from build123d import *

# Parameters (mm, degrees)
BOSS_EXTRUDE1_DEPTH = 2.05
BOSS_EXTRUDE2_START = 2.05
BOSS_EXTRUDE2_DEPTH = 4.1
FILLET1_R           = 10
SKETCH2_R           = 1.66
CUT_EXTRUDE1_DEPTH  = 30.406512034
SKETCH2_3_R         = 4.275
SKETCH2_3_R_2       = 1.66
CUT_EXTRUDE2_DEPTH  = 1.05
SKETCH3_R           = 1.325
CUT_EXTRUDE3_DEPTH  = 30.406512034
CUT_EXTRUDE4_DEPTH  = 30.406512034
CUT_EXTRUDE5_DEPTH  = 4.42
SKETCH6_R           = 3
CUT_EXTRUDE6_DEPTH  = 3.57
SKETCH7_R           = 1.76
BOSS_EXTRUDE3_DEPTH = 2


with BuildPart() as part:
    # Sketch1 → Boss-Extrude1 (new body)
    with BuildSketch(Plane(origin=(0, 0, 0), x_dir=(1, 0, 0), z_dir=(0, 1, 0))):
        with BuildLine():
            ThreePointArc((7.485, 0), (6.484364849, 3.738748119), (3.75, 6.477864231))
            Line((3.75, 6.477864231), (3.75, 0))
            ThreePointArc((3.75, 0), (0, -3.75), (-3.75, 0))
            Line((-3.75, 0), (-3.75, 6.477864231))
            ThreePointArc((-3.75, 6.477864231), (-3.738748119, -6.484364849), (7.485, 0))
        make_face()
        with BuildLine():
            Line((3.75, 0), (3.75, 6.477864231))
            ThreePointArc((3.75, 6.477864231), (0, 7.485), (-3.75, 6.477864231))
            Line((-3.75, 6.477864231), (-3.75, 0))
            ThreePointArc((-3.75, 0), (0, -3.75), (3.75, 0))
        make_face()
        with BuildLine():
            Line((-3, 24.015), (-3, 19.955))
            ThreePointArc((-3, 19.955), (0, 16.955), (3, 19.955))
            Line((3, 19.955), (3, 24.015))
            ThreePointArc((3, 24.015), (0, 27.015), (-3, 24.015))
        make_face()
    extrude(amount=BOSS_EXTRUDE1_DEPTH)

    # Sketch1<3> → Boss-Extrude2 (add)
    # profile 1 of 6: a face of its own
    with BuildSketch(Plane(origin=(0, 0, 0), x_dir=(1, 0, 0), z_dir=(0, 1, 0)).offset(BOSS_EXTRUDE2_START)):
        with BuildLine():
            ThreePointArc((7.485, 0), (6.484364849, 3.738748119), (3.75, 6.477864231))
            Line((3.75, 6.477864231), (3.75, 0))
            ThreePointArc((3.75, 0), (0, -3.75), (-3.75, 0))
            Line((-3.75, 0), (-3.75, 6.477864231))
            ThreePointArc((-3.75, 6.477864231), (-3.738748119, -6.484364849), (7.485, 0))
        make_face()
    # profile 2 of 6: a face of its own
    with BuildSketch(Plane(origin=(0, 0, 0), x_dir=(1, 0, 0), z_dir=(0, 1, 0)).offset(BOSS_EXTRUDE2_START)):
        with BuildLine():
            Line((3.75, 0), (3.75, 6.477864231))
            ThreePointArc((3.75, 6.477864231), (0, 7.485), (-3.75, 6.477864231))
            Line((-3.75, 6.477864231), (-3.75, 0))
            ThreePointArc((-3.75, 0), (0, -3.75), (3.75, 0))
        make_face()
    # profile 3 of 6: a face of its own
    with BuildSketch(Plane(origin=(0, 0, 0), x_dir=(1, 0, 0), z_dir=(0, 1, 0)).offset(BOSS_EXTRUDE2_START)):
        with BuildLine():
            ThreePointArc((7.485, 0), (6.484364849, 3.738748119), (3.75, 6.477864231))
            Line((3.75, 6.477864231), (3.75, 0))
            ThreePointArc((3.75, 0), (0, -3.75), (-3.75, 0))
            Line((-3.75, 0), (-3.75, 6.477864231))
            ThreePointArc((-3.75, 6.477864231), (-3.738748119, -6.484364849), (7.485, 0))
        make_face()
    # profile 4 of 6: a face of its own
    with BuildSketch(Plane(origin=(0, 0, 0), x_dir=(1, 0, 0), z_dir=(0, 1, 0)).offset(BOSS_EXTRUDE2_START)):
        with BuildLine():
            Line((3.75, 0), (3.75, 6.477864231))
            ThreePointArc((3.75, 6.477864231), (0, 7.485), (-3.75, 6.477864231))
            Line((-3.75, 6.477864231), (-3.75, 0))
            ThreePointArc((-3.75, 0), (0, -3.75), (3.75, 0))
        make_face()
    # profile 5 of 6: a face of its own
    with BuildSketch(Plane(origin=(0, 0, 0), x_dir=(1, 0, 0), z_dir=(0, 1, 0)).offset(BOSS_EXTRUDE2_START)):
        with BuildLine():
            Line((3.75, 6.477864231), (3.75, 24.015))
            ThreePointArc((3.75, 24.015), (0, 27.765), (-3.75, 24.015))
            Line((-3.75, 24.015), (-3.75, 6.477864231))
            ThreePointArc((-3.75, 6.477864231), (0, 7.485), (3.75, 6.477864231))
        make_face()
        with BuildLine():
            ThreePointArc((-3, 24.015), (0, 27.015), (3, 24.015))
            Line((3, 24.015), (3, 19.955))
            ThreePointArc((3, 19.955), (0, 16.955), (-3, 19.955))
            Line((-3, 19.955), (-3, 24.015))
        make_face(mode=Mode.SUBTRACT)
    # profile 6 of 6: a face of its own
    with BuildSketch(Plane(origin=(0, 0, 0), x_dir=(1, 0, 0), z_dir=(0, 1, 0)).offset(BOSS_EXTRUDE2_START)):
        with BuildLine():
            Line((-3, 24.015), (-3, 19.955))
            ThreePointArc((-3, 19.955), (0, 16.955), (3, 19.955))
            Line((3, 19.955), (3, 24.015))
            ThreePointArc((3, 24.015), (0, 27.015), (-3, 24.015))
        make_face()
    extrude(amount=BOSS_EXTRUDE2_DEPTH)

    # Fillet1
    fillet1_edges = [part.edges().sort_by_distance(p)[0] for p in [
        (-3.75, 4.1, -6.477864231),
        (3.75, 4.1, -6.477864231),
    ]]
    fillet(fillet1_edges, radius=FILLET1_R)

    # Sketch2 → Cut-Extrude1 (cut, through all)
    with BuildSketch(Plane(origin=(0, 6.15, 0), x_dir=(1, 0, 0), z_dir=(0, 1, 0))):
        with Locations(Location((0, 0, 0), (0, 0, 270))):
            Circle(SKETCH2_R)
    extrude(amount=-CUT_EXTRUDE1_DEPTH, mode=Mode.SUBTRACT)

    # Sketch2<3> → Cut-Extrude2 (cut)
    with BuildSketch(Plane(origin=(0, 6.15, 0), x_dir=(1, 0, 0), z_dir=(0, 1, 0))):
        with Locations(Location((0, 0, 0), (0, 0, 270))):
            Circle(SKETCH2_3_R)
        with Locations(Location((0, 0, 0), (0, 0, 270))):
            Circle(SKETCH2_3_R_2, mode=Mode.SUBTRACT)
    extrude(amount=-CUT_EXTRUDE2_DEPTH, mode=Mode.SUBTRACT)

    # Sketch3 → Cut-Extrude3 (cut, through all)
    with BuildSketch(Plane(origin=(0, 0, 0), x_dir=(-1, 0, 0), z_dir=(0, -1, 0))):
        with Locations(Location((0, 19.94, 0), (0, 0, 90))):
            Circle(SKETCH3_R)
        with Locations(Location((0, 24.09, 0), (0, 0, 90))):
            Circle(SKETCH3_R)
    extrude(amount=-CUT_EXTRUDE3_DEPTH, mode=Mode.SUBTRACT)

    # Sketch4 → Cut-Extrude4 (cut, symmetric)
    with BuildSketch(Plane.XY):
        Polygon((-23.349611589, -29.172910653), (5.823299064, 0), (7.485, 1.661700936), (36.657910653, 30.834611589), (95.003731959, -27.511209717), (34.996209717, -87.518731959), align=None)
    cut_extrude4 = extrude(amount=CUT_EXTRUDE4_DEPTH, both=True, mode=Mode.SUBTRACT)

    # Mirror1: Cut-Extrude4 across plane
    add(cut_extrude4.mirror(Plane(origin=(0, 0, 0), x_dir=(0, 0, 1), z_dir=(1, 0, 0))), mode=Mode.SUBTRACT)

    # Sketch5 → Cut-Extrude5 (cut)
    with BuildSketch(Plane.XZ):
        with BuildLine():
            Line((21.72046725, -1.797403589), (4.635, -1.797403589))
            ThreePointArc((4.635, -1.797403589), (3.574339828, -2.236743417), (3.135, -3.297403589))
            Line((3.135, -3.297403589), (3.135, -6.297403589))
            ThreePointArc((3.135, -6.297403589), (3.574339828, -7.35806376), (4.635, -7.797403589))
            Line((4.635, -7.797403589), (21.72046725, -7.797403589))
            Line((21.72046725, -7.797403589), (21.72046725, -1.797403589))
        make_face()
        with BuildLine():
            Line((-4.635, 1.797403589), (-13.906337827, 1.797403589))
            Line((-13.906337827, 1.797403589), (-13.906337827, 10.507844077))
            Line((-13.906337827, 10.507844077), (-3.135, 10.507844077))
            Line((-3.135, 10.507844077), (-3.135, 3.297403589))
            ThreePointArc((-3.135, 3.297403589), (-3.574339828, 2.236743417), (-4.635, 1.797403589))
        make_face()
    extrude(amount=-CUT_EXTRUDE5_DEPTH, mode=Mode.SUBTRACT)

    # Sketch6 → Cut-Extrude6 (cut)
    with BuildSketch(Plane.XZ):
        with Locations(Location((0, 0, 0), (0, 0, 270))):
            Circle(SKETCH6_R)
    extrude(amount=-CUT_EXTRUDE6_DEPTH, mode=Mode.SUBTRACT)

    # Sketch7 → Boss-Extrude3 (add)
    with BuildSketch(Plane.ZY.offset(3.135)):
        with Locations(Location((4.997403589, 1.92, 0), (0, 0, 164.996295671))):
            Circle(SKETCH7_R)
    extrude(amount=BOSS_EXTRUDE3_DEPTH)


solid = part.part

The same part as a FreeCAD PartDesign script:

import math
import FreeCAD as App
import Part
import Sketcher
Q = App.Units.Quantity


def edges_at(feature, points):
    """Names of the edges that pass closest to the given points."""
    edges = feature.Shape.Edges
    near = lambda p: min(range(len(edges)), key=lambda i: edges[i].distToShape(Part.Vertex(*p))[0])
    return sorted({f"Edge{near(p) + 1}" for p in points})

doc = App.newDocument("Part")
body = doc.addObject("PartDesign::Body", "Body")
body.AllowCompound = True

# Sketch on XZ plane
sketch1 = body.newObject("Sketcher::SketchObject", "Sketch")
sketch1.AttachmentSupport = (doc.getObject("XZ_Plane"), [""])
sketch1.MapMode = "FlatFace"
sketch1.addGeometry(Part.ArcOfCircle(Part.Circle(App.Vector(0, 0, 0), App.Vector(0, 0, 1), 7.5), math.radians(-60), math.radians(0)), False)
sketch1.addGeometry(Part.ArcOfCircle(Part.Circle(App.Vector(0, 0, 0), App.Vector(0, 0, 1), 7.5), math.radians(-120), math.radians(-60)), False)
sketch1.addGeometry(Part.ArcOfCircle(Part.Circle(App.Vector(0, 0, 0), App.Vector(0, 0, 1), 7.5), math.radians(0), math.radians(240)), False)
sketch1.addGeometry(Part.LineSegment(App.Vector(-3, -24, 0), App.Vector(-3, -20, 0)), False)
sketch1.addGeometry(Part.ArcOfCircle(Part.Circle(App.Vector(0, -20, 0), App.Vector(0, 0, 1), 3), math.radians(0), math.radians(180)), False)
sketch1.addGeometry(Part.LineSegment(App.Vector(3, -20, 0), App.Vector(3, -24, 0)), False)
sketch1.addGeometry(Part.ArcOfCircle(Part.Circle(App.Vector(0, -24, 0), App.Vector(0, 0, 1), 3), math.radians(180), math.radians(360)), False)
sketch1.addConstraint(Sketcher.Constraint("Tangent", 0, 1, 1, 2))
sketch1.addConstraint(Sketcher.Constraint("Tangent", 1, 1, 2, 2))
sketch1.addConstraint(Sketcher.Constraint("Tangent", 2, 1, 0, 2))
sketch1.addConstraint(Sketcher.Constraint("Tangent", 3, 2, 4, 2))
sketch1.addConstraint(Sketcher.Constraint("Tangent", 4, 1, 5, 1))
sketch1.addConstraint(Sketcher.Constraint("Tangent", 5, 2, 6, 2))
sketch1.addConstraint(Sketcher.Constraint("Tangent", 6, 1, 3, 1))
sketch1.addConstraint(Sketcher.Constraint("Vertical", 3))
sketch1.addConstraint(Sketcher.Constraint("Vertical", 5))
sketch1.addConstraint(Sketcher.Constraint("Coincident", 0, 3, -1, 1))
sketch1.addConstraint(Sketcher.Constraint("PointOnObject", 4, 3, -2))
sketch1.addConstraint(Sketcher.Constraint("PointOnObject", 2, 1, -1))
sketch1.addConstraint(Sketcher.Constraint("Horizontal", 0, 1, 1, 1))
sketch1.addConstraint(Sketcher.Constraint("Radius", 4, 3.0))
sketch1.addConstraint(Sketcher.Constraint("Radius", 0, 7.485))
sketch1.addConstraint(Sketcher.Constraint("DistanceY", 3, 1, 3, 2, 4.06))
sketch1.addConstraint(Sketcher.Constraint("DistanceX", 1, 1, 0, 1, 7.5))
sketch1.addConstraint(Sketcher.Constraint("DistanceY", 4, 3, -1, 1, 19.955))
pad1 = body.newObject("PartDesign::Pad", "Pad")
pad1.Profile = sketch1
pad1.Length = 2.05
pad1.Reversed = True

# Sketch on XZ plane
sketch2 = body.newObject("Sketcher::SketchObject", "Sketch001")
sketch2.AttachmentSupport = (doc.getObject("XZ_Plane"), [""])
sketch2.MapMode = "FlatFace"
sketch2.AttachmentOffset = App.Placement(App.Vector(0, 0, -2.05), App.Rotation())
sketch2.addGeometry(Part.ArcOfCircle(Part.Circle(App.Vector(0, 0, 0), App.Vector(0, 0, 1), 7.5), math.radians(-60), math.radians(0)), False)
sketch2.addGeometry(Part.LineSegment(App.Vector(3.8, -6.5, 0), App.Vector(3.8, -24, 0)), False)
sketch2.addGeometry(Part.ArcOfCircle(Part.Circle(App.Vector(0, -24, 0), App.Vector(0, 0, 1), 3.8), math.radians(180), math.radians(360)), False)
sketch2.addGeometry(Part.LineSegment(App.Vector(-3.8, -24, 0), App.Vector(-3.8, -6.5, 0)), False)
sketch2.addGeometry(Part.ArcOfCircle(Part.Circle(App.Vector(0, 0, 0), App.Vector(0, 0, 1), 7.5), math.radians(0), math.radians(240)), False)
sketch2.addConstraint(Sketcher.Constraint("Coincident", 0, 1, 1, 1))
sketch2.addConstraint(Sketcher.Constraint("Tangent", 1, 2, 2, 2))
sketch2.addConstraint(Sketcher.Constraint("Tangent", 2, 1, 3, 1))
sketch2.addConstraint(Sketcher.Constraint("Coincident", 3, 2, 4, 2))
sketch2.addConstraint(Sketcher.Constraint("Tangent", 4, 1, 0, 2))
sketch2.addConstraint(Sketcher.Constraint("Vertical", 1))
sketch2.addConstraint(Sketcher.Constraint("Vertical", 3))
sketch2.addConstraint(Sketcher.Constraint("Coincident", 0, 3, -1, 1))
sketch2.addConstraint(Sketcher.Constraint("Equal", 0, 4))
sketch2.addConstraint(Sketcher.Constraint("PointOnObject", 2, 3, -2))
sketch2.addConstraint(Sketcher.Constraint("PointOnObject", 4, 1, -1))
sketch2.addConstraint(Sketcher.Constraint("Radius", 2, 3.75))
sketch2.addConstraint(Sketcher.Constraint("Radius", 0, 7.485))
sketch2.addConstraint(Sketcher.Constraint("DistanceY", 2, 3, -1, 1, 24.015))
pad2 = body.newObject("PartDesign::Pad", "Pad001")
pad2.Profile = sketch2
pad2.Length = 4.1
pad2.Reversed = True
doc.recompute()

fillet = body.newObject("PartDesign::Fillet", "Fillet")
fillet.Base = (pad2, edges_at(pad2, [(-3.75, 4.1, -6.478), (3.75, 4.1, -6.478)]))
fillet.Radius = 10

# Sketch on XZ plane
sketch3 = body.newObject("Sketcher::SketchObject", "Sketch002")
sketch3.AttachmentSupport = (doc.getObject("XZ_Plane"), [""])
sketch3.MapMode = "FlatFace"
sketch3.AttachmentOffset = App.Placement(App.Vector(0, 0, -6.15), App.Rotation())
sketch3.addGeometry(Part.Circle(App.Vector(0, 0, 0), App.Vector(0, 0, 1), 1.7), False)
sketch3.addConstraint(Sketcher.Constraint("Coincident", 0, 3, -1, 1))
sketch3.addConstraint(Sketcher.Constraint("Diameter", 0, 3.32))
pocket1 = body.newObject("PartDesign::Pocket", "Pocket")
pocket1.Profile = sketch3
pocket1.Type = "ThroughAll"
pocket1.Reversed = True

# Sketch on XZ plane
sketch4 = body.newObject("Sketcher::SketchObject", "Sketch003")
sketch4.AttachmentSupport = (doc.getObject("XZ_Plane"), [""])
sketch4.MapMode = "FlatFace"
sketch4.AttachmentOffset = App.Placement(App.Vector(0, 0, -6.15), App.Rotation())
sketch4.addGeometry(Part.Circle(App.Vector(0, 0, 0), App.Vector(0, 0, 1), 4.3), False)
sketch4.addGeometry(Part.Circle(App.Vector(0, 0, 0), App.Vector(0, 0, 1), 1.7), False)
sketch4.addConstraint(Sketcher.Constraint("Coincident", 0, 3, -1, 1))
sketch4.addConstraint(Sketcher.Constraint("Coincident", 1, 3, -1, 1))
sketch4.addConstraint(Sketcher.Constraint("Diameter", 0, 8.55))
sketch4.addConstraint(Sketcher.Constraint("Diameter", 1, 3.32))
pocket2 = body.newObject("PartDesign::Pocket", "Pocket001")
pocket2.Profile = sketch4
pocket2.Length = 1.05
pocket2.Reversed = True

# Sketch on XZ plane
sketch5 = body.newObject("Sketcher::SketchObject", "Sketch004")
sketch5.AttachmentSupport = (doc.getObject("XZ_Plane"), [""])
sketch5.MapMode = "FlatFace"
sketch5.addGeometry(Part.Circle(App.Vector(0, -19.9, 0), App.Vector(0, 0, 1), 1.3), False)
sketch5.addGeometry(Part.Circle(App.Vector(0, -24.1, 0), App.Vector(0, 0, 1), 1.3), False)
sketch5.addConstraint(Sketcher.Constraint("Equal", 0, 1))
sketch5.addConstraint(Sketcher.Constraint("PointOnObject", 0, 3, -2))
sketch5.addConstraint(Sketcher.Constraint("PointOnObject", 1, 3, -2))
sketch5.addConstraint(Sketcher.Constraint("Diameter", 0, 2.65))
sketch5.addConstraint(Sketcher.Constraint("DistanceY", 0, 3, -1, 1, 19.94))
sketch5.addConstraint(Sketcher.Constraint("DistanceY", 1, 3, -1, 1, 24.09))
pocket3 = body.newObject("PartDesign::Pocket", "Pocket002")
pocket3.Profile = sketch5
pocket3.Type = "ThroughAll"

# Sketch on XY plane
sketch6 = body.newObject("Sketcher::SketchObject", "Sketch005")
sketch6.AttachmentSupport = (doc.getObject("XY_Plane"), [""])
sketch6.MapMode = "FlatFace"
sketch6.addGeometry(Part.LineSegment(App.Vector(37, 31, 0), App.Vector(-23, -29, 0)), False)
sketch6.addGeometry(Part.LineSegment(App.Vector(-23, -29, 0), App.Vector(35, -88, 0)), False)
sketch6.addGeometry(Part.LineSegment(App.Vector(35, -88, 0), App.Vector(95, -28, 0)), False)
sketch6.addGeometry(Part.LineSegment(App.Vector(95, -28, 0), App.Vector(37, 31, 0)), False)
sketch6.addConstraint(Sketcher.Constraint("Coincident", 0, 2, 1, 1))
sketch6.addConstraint(Sketcher.Constraint("Coincident", 1, 2, 2, 1))
sketch6.addConstraint(Sketcher.Constraint("Coincident", 2, 2, 3, 1))
sketch6.addConstraint(Sketcher.Constraint("Coincident", 3, 2, 0, 1))
sketch6.addConstraint(Sketcher.Constraint("Perpendicular", 0, 1))
sketch6.addConstraint(Sketcher.Constraint("Perpendicular", 1, 2))
sketch6.addConstraint(Sketcher.Constraint("Perpendicular", 2, 3))
sketch6.addConstraint(Sketcher.Constraint("Angle", 0, Q("-135 deg")))
sketch6.addConstraint(Sketcher.Constraint("DistanceY", 0, 2, 2, 2, 1.661701))
sketch6.addConstraint(Sketcher.Constraint("Distance", 0, 84.863452))
sketch6.addConstraint(Sketcher.Constraint("DistanceX", 0, 2, -1, 1, 23.349612))
sketch6.addConstraint(Sketcher.Constraint("DistanceY", 0, 2, -1, 1, 29.172911))
pocket4 = body.newObject("PartDesign::Pocket", "Pocket003")
pocket4.Profile = sketch6
pocket4.Length = 60.813024
pocket4.Midplane = True
doc.recompute()

mirrored = body.newObject("PartDesign::Mirrored", "Mirrored")
mirrored.Originals = [pocket4]
mirrored.MirrorPlane = (doc.getObject("YZ_Plane"), [""])
body.Tip = mirrored

# Sketch on XZ plane
sketch7 = body.newObject("Sketcher::SketchObject", "Sketch006")
sketch7.AttachmentSupport = (doc.getObject("XZ_Plane"), [""])
sketch7.MapMode = "FlatFace"
sketch7.addGeometry(Part.LineSegment(App.Vector(21.7, -1.8, 0), App.Vector(4.6, -1.8, 0)), False)
sketch7.addGeometry(Part.ArcOfCircle(Part.Circle(App.Vector(4.6, -3.3, 0), App.Vector(0, 0, 1), 1.5), math.radians(90), math.radians(180)), False)
sketch7.addGeometry(Part.LineSegment(App.Vector(3.1, -3.3, 0), App.Vector(3.1, -6.3, 0)), False)
sketch7.addGeometry(Part.ArcOfCircle(Part.Circle(App.Vector(4.6, -6.3, 0), App.Vector(0, 0, 1), 1.5), math.radians(-180), math.radians(-90)), False)
sketch7.addGeometry(Part.LineSegment(App.Vector(4.6, -7.8, 0), App.Vector(21.7, -7.8, 0)), False)
sketch7.addGeometry(Part.LineSegment(App.Vector(21.7, -7.8, 0), App.Vector(21.7, -1.8, 0)), False)
sketch7.addGeometry(Part.LineSegment(App.Vector(-13.9, 1.8, 0), App.Vector(-4.6, 1.8, 0)), False)
sketch7.addGeometry(Part.ArcOfCircle(Part.Circle(App.Vector(-4.6, 3.3, 0), App.Vector(0, 0, 1), 1.5), math.radians(-90), math.radians(0)), False)
sketch7.addGeometry(Part.LineSegment(App.Vector(-3.1, 3.3, 0), App.Vector(-3.1, 10.5, 0)), False)
sketch7.addGeometry(Part.LineSegment(App.Vector(-3.1, 10.5, 0), App.Vector(-13.9, 10.5, 0)), False)
sketch7.addGeometry(Part.LineSegment(App.Vector(-13.9, 10.5, 0), App.Vector(-13.9, 1.8, 0)), False)
sketch7.addConstraint(Sketcher.Constraint("Tangent", 0, 2, 1, 1))
sketch7.addConstraint(Sketcher.Constraint("Tangent", 1, 2, 2, 1))
sketch7.addConstraint(Sketcher.Constraint("Tangent", 2, 2, 3, 1))
sketch7.addConstraint(Sketcher.Constraint("Tangent", 3, 2, 4, 1))
sketch7.addConstraint(Sketcher.Constraint("Coincident", 4, 2, 5, 1))
sketch7.addConstraint(Sketcher.Constraint("Coincident", 5, 2, 0, 1))
sketch7.addConstraint(Sketcher.Constraint("Tangent", 6, 2, 7, 1))
sketch7.addConstraint(Sketcher.Constraint("Tangent", 7, 2, 8, 1))
sketch7.addConstraint(Sketcher.Constraint("Coincident", 8, 2, 9, 1))
sketch7.addConstraint(Sketcher.Constraint("Coincident", 9, 2, 10, 1))
sketch7.addConstraint(Sketcher.Constraint("Coincident", 10, 2, 6, 1))
sketch7.addConstraint(Sketcher.Constraint("Horizontal", 0))
sketch7.addConstraint(Sketcher.Constraint("Vertical", 2))
sketch7.addConstraint(Sketcher.Constraint("Horizontal", 4))
sketch7.addConstraint(Sketcher.Constraint("Vertical", 5))
sketch7.addConstraint(Sketcher.Constraint("Horizontal", 6))
sketch7.addConstraint(Sketcher.Constraint("Vertical", 8))
sketch7.addConstraint(Sketcher.Constraint("Horizontal", 9))
sketch7.addConstraint(Sketcher.Constraint("Vertical", 10))
sketch7.addConstraint(Sketcher.Constraint("Equal", 1, 3))
sketch7.addConstraint(Sketcher.Constraint("Equal", 3, 7))
sketch7.addConstraint(Sketcher.Constraint("Symmetric", 1, 3, 7, 3, -1, 1))
sketch7.addConstraint(Sketcher.Constraint("Radius", 1, 1.5))
sketch7.addConstraint(Sketcher.Constraint("DistanceY", 2, 2, 2, 1, 3.0))
sketch7.addConstraint(Sketcher.Constraint("DistanceX", 7, 3, 1, 3, 9.27))
sketch7.addConstraint(Sketcher.Constraint("DistanceY", 8, 1, 8, 2, 7.21044))
sketch7.addConstraint(Sketcher.Constraint("DistanceX", 0, 2, 0, 1, 17.085467))
sketch7.addConstraint(Sketcher.Constraint("DistanceX", 6, 1, 6, 2, 9.271338))
sketch7.addConstraint(Sketcher.Constraint("DistanceY", 1, 3, -1, 1, 3.297404))
pocket5 = body.newObject("PartDesign::Pocket", "Pocket004")
pocket5.Profile = sketch7
pocket5.Length = 4.42

# Sketch on XZ plane
sketch8 = body.newObject("Sketcher::SketchObject", "Sketch007")
sketch8.AttachmentSupport = (doc.getObject("XZ_Plane"), [""])
sketch8.MapMode = "FlatFace"
sketch8.addGeometry(Part.Circle(App.Vector(0, 0, 0), App.Vector(0, 0, 1), 3), False)
sketch8.addConstraint(Sketcher.Constraint("Coincident", 0, 3, -1, 1))
sketch8.addConstraint(Sketcher.Constraint("Diameter", 0, 6.0))
pocket6 = body.newObject("PartDesign::Pocket", "Pocket005")
pocket6.Profile = sketch8
pocket6.Length = 3.57

# Sketch on YZ plane
sketch9 = body.newObject("Sketcher::SketchObject", "Sketch008")
sketch9.AttachmentSupport = (doc.getObject("YZ_Plane"), [""])
sketch9.MapMode = "FlatFace"
sketch9.AttachmentOffset = App.Placement(App.Vector(0, 0, -3.135), App.Rotation())
sketch9.addGeometry(Part.Circle(App.Vector(1.9, 5, 0), App.Vector(0, 0, 1), 1.8), False)
sketch9.addConstraint(Sketcher.Constraint("Diameter", 0, 3.52))
sketch9.addConstraint(Sketcher.Constraint("DistanceX", -1, 1, 0, 3, 1.92))
sketch9.addConstraint(Sketcher.Constraint("DistanceY", -1, 1, 0, 3, 4.997404))
pad3 = body.newObject("PartDesign::Pad", "Pad002")
pad3.Profile = sketch9
pad3.Length = 2
pad3.Reversed = True

doc.recompute()
